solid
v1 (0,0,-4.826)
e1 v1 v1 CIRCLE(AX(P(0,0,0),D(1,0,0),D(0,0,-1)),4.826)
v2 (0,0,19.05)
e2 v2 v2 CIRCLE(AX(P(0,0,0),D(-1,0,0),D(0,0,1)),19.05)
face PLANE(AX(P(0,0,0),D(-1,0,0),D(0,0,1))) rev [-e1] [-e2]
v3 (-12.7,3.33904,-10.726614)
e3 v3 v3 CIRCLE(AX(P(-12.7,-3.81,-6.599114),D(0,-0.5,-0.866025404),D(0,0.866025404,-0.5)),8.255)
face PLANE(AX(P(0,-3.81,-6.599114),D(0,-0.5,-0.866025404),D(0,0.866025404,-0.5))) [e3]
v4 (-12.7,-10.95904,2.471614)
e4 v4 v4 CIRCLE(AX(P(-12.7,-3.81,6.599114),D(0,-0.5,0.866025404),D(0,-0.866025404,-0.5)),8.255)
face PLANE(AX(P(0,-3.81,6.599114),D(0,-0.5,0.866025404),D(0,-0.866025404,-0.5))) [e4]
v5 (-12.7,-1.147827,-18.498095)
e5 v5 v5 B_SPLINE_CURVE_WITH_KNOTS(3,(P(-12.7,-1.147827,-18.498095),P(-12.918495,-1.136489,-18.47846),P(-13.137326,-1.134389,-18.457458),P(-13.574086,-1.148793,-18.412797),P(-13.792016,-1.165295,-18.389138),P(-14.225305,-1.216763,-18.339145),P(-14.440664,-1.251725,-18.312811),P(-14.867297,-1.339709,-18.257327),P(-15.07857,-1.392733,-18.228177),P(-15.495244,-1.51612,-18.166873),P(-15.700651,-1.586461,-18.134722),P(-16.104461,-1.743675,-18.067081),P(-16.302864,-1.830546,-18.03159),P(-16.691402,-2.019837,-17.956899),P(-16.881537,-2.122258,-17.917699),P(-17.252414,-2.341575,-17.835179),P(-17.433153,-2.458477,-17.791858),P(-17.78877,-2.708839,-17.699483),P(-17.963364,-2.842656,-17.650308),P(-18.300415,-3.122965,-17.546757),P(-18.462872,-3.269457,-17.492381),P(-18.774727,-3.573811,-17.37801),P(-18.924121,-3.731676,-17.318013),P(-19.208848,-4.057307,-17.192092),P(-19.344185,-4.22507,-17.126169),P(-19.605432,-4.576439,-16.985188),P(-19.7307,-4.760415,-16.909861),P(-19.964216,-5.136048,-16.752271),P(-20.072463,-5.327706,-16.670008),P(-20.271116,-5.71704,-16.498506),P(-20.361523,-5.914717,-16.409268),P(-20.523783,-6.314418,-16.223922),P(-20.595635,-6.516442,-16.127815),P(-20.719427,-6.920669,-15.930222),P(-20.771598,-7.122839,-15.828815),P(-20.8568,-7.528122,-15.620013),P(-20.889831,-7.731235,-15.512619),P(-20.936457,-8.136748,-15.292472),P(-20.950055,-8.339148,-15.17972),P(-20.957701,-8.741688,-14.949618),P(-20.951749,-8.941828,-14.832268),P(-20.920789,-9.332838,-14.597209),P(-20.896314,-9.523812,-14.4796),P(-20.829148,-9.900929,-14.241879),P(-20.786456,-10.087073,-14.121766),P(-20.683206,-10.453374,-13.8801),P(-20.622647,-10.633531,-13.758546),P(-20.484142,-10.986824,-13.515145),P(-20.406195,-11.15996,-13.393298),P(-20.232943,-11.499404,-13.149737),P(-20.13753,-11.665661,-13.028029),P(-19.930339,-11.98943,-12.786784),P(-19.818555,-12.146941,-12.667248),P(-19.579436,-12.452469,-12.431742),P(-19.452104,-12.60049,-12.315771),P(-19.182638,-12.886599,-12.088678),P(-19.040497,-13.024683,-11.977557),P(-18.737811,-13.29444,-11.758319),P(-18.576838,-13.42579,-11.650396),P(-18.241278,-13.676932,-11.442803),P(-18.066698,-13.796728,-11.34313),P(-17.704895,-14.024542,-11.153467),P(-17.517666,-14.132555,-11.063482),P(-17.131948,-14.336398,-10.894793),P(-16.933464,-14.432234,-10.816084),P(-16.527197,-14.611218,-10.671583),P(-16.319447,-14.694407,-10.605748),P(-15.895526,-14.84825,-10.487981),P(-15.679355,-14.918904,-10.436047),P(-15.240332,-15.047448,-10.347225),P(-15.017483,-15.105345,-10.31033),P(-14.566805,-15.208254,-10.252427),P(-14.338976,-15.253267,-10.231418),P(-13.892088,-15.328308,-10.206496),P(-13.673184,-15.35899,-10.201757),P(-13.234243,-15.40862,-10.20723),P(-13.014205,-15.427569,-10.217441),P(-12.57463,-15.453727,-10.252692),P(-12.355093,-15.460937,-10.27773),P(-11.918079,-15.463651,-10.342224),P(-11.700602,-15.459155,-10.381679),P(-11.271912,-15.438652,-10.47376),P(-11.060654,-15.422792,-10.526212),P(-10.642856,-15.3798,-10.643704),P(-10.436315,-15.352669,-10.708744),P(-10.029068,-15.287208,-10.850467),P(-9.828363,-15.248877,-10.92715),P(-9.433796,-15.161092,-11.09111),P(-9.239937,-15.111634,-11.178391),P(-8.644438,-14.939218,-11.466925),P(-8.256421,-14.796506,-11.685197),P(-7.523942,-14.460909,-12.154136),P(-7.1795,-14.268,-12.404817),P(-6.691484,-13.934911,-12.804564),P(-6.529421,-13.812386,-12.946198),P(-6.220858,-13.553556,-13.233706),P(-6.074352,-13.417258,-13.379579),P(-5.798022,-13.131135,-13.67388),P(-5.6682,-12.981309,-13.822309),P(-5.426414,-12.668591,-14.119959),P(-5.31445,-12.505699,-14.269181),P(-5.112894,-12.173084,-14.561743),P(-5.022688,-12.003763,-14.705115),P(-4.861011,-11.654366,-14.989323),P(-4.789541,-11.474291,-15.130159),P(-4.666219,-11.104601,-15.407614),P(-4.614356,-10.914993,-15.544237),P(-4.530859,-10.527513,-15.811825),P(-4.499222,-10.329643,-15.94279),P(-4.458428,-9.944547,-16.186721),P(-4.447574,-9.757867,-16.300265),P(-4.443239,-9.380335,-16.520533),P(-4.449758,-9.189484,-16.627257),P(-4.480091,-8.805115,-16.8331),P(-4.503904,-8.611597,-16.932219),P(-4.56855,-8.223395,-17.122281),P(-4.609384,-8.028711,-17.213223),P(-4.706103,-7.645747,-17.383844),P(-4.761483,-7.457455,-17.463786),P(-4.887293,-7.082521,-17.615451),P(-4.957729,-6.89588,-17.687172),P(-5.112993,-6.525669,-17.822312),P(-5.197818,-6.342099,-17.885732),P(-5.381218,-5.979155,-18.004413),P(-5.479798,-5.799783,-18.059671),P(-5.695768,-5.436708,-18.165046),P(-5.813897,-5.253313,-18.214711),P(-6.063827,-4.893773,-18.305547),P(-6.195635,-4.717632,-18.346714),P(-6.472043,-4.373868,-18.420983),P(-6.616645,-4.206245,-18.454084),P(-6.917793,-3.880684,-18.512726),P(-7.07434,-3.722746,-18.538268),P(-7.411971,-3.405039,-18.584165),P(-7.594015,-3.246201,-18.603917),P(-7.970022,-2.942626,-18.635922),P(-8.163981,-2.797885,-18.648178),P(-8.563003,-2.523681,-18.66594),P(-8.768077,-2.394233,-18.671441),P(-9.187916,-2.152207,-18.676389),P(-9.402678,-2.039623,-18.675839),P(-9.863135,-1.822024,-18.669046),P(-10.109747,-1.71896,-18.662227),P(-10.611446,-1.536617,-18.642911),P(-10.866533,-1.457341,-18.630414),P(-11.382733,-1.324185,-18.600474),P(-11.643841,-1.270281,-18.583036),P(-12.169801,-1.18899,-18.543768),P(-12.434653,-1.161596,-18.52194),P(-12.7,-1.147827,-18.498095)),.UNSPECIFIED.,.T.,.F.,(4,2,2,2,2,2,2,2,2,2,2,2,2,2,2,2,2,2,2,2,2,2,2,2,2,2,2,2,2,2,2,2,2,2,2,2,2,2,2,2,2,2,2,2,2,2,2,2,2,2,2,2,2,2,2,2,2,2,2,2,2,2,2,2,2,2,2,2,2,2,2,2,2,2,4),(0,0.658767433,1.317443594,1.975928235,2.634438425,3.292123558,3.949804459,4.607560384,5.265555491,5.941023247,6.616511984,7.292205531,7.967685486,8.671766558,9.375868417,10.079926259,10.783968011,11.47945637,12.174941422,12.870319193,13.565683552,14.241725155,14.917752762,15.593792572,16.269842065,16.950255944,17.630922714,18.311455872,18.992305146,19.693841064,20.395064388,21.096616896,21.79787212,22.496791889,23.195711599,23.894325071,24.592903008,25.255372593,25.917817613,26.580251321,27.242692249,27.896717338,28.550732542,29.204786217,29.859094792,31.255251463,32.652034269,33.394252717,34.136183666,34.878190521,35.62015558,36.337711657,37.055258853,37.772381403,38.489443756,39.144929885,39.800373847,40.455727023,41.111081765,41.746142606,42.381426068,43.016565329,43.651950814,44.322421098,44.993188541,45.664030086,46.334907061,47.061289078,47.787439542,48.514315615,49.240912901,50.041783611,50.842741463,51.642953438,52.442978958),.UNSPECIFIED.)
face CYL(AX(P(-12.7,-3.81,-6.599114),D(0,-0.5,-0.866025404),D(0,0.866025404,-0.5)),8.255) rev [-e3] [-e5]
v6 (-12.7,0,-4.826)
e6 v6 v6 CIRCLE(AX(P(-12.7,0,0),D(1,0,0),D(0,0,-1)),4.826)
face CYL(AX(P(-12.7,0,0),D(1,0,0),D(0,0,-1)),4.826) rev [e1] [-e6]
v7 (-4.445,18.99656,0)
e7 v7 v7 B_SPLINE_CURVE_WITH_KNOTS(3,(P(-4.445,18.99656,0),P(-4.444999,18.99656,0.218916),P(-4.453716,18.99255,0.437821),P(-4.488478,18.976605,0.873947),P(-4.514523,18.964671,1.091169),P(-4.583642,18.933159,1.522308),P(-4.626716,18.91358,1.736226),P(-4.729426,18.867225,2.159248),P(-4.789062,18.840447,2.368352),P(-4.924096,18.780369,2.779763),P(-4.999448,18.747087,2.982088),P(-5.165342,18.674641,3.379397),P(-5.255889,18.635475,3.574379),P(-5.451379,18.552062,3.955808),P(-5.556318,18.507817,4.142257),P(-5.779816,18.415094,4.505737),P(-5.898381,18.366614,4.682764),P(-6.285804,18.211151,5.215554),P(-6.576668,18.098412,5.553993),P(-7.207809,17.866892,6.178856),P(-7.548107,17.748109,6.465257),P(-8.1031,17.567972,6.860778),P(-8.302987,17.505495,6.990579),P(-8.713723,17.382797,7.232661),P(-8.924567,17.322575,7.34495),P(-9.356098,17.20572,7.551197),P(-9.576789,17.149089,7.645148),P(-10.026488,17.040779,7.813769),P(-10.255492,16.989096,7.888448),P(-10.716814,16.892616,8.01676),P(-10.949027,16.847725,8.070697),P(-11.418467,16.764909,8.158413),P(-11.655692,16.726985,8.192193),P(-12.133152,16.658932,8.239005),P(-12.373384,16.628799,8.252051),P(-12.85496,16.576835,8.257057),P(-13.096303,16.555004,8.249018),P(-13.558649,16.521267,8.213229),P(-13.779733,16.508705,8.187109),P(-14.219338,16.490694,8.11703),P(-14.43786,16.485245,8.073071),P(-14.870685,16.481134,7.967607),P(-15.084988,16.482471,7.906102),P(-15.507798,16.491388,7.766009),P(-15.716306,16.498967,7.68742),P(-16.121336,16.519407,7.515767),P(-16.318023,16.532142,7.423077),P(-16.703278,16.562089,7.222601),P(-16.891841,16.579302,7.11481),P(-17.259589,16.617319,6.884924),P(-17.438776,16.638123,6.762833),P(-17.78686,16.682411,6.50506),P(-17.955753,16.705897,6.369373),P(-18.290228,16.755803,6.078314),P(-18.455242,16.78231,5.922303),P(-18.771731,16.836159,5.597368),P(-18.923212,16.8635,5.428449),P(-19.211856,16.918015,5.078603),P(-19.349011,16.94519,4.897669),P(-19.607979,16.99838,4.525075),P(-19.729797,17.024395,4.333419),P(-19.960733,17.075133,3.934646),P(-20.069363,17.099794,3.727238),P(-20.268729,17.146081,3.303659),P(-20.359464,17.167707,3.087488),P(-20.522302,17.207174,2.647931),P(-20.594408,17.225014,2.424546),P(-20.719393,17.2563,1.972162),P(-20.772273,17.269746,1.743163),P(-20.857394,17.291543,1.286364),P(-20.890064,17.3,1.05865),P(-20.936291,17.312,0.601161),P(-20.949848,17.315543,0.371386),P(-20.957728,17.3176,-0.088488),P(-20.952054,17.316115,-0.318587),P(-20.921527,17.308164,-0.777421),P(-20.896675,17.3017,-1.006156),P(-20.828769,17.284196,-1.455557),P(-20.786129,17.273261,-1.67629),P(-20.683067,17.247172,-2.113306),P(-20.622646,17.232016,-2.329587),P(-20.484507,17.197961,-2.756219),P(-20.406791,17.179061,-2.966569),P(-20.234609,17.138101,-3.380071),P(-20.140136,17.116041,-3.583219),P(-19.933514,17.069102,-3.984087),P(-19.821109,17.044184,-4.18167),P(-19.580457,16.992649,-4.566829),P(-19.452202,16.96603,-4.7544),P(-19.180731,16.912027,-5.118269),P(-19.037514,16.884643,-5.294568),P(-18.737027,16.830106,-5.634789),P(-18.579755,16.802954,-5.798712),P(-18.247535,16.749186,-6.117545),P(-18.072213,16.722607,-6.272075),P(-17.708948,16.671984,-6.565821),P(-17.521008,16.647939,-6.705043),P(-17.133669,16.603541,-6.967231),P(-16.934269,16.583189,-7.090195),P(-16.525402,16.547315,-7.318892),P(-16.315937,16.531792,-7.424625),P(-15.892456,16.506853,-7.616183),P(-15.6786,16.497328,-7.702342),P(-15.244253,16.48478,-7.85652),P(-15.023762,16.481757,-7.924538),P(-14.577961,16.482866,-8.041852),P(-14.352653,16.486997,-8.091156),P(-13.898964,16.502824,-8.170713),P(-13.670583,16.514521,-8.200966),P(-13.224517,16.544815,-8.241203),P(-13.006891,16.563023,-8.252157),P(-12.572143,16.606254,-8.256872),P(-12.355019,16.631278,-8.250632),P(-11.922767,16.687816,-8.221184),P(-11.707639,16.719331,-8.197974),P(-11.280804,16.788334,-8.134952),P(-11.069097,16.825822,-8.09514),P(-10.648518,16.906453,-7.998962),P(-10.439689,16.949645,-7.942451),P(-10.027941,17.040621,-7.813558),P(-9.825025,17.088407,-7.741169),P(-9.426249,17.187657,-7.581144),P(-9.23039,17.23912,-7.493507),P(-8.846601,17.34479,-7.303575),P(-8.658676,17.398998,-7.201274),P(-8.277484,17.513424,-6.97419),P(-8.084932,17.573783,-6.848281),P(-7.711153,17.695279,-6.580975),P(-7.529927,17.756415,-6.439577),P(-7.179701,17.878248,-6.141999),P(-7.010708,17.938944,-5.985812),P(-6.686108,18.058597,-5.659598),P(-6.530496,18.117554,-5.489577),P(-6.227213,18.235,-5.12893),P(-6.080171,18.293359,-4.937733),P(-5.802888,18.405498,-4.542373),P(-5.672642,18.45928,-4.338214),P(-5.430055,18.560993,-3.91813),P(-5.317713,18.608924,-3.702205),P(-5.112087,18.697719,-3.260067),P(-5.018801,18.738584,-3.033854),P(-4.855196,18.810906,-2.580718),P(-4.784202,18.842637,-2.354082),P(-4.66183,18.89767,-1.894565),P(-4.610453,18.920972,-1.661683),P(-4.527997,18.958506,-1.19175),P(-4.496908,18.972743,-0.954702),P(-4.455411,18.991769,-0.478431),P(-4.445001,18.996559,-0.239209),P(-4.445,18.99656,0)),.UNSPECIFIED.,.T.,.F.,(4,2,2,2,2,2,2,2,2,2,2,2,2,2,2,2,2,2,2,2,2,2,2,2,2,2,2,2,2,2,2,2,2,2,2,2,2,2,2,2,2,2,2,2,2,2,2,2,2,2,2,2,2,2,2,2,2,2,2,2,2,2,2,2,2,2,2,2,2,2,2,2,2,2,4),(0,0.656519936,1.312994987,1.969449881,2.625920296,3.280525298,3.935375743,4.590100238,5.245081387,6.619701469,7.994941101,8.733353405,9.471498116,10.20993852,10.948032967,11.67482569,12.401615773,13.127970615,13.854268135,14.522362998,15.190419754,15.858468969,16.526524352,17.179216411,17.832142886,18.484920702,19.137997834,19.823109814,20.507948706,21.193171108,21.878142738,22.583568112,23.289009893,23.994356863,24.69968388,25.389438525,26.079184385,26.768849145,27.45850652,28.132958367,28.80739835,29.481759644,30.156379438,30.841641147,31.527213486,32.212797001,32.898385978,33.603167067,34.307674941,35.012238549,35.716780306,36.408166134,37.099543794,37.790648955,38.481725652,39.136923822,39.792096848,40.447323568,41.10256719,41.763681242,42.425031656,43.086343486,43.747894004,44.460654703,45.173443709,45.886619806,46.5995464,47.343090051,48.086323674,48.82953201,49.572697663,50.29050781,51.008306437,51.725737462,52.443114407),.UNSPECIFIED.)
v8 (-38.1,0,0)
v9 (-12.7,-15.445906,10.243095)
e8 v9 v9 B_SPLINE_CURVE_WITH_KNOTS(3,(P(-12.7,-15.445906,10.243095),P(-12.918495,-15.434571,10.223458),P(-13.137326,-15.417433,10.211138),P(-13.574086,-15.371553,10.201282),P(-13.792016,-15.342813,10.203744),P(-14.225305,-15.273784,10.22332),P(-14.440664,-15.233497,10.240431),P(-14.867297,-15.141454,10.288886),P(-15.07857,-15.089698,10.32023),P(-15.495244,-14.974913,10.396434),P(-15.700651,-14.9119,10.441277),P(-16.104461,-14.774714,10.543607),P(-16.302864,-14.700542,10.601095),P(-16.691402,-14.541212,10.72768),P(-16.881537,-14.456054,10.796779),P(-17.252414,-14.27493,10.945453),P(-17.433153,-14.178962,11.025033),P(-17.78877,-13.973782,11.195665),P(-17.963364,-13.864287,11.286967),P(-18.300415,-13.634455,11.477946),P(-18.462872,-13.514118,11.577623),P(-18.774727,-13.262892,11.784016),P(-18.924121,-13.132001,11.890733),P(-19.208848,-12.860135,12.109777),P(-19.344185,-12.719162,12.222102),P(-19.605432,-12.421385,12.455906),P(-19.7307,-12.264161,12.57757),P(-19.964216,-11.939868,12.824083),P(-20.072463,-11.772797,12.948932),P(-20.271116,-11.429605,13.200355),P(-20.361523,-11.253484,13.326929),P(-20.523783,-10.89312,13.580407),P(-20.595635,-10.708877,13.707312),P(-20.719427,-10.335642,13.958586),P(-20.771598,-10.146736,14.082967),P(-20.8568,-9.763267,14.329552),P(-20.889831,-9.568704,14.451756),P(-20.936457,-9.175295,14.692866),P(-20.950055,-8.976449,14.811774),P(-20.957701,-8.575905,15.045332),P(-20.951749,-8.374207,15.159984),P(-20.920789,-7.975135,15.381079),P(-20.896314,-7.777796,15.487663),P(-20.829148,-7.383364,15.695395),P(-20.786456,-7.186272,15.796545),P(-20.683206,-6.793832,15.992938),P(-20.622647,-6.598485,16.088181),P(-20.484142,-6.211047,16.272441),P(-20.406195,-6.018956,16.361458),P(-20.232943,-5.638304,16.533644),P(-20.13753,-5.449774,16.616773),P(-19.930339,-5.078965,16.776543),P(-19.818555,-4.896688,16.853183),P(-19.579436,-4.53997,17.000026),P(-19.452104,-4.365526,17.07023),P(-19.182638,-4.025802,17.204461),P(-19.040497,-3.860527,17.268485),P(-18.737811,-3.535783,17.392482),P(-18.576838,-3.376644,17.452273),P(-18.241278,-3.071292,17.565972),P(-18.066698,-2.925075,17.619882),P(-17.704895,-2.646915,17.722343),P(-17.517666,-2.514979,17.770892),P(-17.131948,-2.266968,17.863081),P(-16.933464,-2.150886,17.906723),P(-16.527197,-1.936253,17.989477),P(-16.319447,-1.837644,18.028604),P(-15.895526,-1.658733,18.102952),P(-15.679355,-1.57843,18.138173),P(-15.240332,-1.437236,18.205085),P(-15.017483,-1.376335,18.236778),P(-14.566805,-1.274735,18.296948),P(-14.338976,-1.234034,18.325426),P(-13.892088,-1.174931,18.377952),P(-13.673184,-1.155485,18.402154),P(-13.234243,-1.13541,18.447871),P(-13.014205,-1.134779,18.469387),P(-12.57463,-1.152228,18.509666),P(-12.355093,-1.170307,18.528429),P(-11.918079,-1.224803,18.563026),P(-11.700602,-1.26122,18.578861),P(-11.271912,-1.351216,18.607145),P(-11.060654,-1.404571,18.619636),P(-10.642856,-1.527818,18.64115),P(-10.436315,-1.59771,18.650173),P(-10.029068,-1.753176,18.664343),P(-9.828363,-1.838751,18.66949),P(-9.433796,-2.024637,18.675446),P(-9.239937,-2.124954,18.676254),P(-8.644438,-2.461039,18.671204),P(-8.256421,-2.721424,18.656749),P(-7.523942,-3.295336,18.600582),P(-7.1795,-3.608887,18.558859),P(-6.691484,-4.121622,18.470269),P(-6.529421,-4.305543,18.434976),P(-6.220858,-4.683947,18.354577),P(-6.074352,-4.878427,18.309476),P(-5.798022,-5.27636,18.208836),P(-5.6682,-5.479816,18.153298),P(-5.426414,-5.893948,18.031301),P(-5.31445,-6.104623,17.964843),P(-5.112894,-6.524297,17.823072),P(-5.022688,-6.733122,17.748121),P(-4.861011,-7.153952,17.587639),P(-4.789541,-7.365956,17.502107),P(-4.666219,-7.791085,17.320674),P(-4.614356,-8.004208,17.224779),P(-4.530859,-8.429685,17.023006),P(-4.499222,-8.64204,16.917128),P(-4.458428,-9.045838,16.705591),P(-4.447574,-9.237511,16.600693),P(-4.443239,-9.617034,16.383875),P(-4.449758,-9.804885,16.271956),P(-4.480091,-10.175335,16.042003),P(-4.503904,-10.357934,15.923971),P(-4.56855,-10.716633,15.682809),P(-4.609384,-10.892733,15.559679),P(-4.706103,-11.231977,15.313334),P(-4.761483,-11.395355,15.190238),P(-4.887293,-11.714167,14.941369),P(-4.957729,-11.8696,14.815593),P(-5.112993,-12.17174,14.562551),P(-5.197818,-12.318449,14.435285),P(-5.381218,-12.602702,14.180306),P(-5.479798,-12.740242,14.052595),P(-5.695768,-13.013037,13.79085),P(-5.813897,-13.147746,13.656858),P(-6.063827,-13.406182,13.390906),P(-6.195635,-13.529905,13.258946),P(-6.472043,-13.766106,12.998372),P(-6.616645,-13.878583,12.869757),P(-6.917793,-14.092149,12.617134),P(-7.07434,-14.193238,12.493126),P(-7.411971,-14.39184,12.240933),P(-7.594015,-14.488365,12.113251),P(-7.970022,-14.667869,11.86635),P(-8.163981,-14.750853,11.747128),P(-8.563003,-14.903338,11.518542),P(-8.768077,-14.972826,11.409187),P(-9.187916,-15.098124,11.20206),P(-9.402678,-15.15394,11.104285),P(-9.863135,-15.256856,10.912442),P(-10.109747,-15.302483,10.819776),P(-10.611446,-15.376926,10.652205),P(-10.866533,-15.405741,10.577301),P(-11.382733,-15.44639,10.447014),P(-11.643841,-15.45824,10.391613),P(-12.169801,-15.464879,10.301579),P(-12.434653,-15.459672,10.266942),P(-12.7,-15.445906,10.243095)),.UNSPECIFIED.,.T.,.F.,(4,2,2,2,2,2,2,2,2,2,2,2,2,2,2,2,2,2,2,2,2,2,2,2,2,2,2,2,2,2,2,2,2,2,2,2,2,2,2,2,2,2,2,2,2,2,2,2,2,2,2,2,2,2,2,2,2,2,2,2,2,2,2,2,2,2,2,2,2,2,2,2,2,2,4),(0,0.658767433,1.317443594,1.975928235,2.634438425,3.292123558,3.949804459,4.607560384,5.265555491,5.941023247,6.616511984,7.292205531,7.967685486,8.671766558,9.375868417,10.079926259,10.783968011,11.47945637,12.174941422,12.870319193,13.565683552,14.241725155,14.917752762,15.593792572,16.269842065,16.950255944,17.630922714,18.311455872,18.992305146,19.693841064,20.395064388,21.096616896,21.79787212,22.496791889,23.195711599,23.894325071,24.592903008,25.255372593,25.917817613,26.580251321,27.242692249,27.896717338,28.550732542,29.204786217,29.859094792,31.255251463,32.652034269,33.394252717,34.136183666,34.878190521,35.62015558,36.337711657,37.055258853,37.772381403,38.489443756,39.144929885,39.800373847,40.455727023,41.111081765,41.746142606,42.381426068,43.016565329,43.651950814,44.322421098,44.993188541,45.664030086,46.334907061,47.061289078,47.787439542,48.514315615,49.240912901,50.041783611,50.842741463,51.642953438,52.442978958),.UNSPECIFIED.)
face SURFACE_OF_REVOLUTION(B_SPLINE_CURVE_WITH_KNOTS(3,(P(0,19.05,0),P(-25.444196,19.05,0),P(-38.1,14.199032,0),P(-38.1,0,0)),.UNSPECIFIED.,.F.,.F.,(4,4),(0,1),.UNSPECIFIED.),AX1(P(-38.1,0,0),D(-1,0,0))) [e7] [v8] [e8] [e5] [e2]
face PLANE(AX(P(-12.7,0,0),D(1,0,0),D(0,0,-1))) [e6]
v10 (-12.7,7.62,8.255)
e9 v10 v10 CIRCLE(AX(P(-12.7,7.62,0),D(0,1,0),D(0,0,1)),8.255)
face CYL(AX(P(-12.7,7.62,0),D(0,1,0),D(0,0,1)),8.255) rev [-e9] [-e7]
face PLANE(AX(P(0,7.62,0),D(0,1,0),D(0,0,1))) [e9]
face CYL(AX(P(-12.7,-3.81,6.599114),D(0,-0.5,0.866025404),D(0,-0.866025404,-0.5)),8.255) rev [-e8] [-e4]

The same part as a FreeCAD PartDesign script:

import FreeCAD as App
import Part
import Sketcher
Q = App.Units.Quantity

doc = App.newDocument("Part")
body = doc.addObject("PartDesign::Body", "Body")

sketch1 = doc.addObject("Sketcher::SketchObject", "Sketch")
body.addObject(sketch1)
sketch1.AttachmentSupport = (doc.XY_Plane, [""])
sketch1.MapMode = "FlatFace"
sketch1.addGeometry(Part.LineSegment(App.Vector(0, 0, 0), App.Vector(0, 19.05, 0)), False)
sketch1.addGeometry(Part.BSplineCurve([App.Vector(-38.1, 0, 0), App.Vector(-38.1, 14.199032, 0), App.Vector(-25.444196, 19.05, 0), App.Vector(0, 19.05, 0)], [4, 4], [0, 1], False, 3, [1, 1, 1, 1], False), False)
sketch1.addGeometry(Part.LineSegment(App.Vector(-38.1, 0, 0), App.Vector(0, 0, 0)), False)
sketch1.addConstraint(Sketcher.Constraint("Block", 1))
sketch1.addConstraint(Sketcher.Constraint("Coincident", 0, 2, 1, 2))
sketch1.addConstraint(Sketcher.Constraint("Coincident", 1, 1, 2, 1))
sketch1.addConstraint(Sketcher.Constraint("Coincident", 2, 2, 0, 1))
sketch1.addConstraint(Sketcher.Constraint("Vertical", 0))
sketch1.addConstraint(Sketcher.Constraint("Horizontal", 2))
revolution = doc.addObject("PartDesign::Revolution", "Revolution")
body.addObject(revolution)
revolution.Profile = sketch1
revolution.ReferenceAxis = (sketch1, ["H_Axis"])
revolution.Angle = 360

sketch2 = doc.addObject("Sketcher::SketchObject", "Sketch001")
body.addObject(sketch2)
sketch2.AttachmentSupport = (doc.XZ_Plane, [""])
sketch2.MapMode = "FlatFace"
sketch2.AttachmentOffset = App.Placement(App.Vector(0, 0, -0.75 * 25.4), App.Rotation())
sketch2.addGeometry(Part.Circle(App.Vector(-13, 0, 0), App.Vector(0, 0, 1), 8), False)
sketch2.addConstraint(Sketcher.Constraint("PointOnObject", 0, 3, -1))
sketch2.addConstraint(Sketcher.Constraint("Diameter", 0, Q("0.65 in")))
sketch2.addConstraint(Sketcher.Constraint("DistanceX", 0, 3, -1, 1, Q("0.5 in")))
pocket1 = doc.addObject("PartDesign::Pocket", "Pocket")
body.addObject(pocket1)
pocket1.Profile = sketch2
pocket1.Length = Q("0.45 in")
pocket1.Reversed = True
doc.recompute()

polarpattern = doc.addObject("PartDesign::PolarPattern", "PolarPattern")
body.addObject(polarpattern)
polarpattern.Originals = [pocket1]
polarpattern.Axis = (doc.X_Axis, [""])
polarpattern.Angle = 360
polarpattern.Occurrences = 3
body.Tip = polarpattern

sketch3 = doc.addObject("Sketcher::SketchObject", "Sketch002")
body.addObject(sketch3)
sketch3.AttachmentSupport = (doc.YZ_Plane, [""])
sketch3.MapMode = "FlatFace"
sketch3.addGeometry(Part.Circle(App.Vector(0, 0, 0), App.Vector(0, 0, 1), 4.8), False)
sketch3.addConstraint(Sketcher.Constraint("Coincident", 0, 3, -1, 1))
sketch3.addConstraint(Sketcher.Constraint("Diameter", 0, Q("0.38 in")))
pocket2 = doc.addObject("PartDesign::Pocket", "Pocket001")
body.addObject(pocket2)
pocket2.Profile = sketch3
pocket2.Length = Q("0.5 in")

doc.recompute()
